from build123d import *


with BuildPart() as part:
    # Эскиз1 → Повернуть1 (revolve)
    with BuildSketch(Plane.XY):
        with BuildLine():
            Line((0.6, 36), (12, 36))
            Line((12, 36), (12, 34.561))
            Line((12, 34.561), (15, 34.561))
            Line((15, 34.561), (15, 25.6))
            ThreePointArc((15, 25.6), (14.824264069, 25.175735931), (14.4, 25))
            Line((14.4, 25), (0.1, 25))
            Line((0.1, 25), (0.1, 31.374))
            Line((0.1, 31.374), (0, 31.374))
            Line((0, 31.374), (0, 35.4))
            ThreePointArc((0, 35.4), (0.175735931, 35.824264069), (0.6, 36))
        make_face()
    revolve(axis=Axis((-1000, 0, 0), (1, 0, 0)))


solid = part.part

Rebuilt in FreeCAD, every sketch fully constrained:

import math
import FreeCAD as App
import Part
import Sketcher

V = App.Vector

doc = App.newDocument("Part")
body = doc.addObject("PartDesign::Body", "Body")

# Sketch on XY plane
sketch1 = body.newObject("Sketcher::SketchObject", "Sketch")
sketch1.AttachmentSupport = (doc.getObject("XY_Plane"), [""])
sketch1.MapMode = "FlatFace"
sketch1.addGeometry([
    Part.LineSegment(V(12, 36, 0), V(0.6, 36, 0)),  # 0
    Part.ArcOfCircle(Part.Circle(V(0.6, 35.4, 0), V(0, 0, 1), 0.6), math.radians(90), math.radians(180)),  # 1
    Part.LineSegment(V(0, 35.4, 0), V(0, 31.374, 0)),  # 2
    Part.LineSegment(V(0, 31.374, 0), V(0.1, 31.374, 0)),  # 3
    Part.LineSegment(V(0.1, 31.374, 0), V(0.1, 25, 0)),  # 4
    Part.LineSegment(V(0.1, 25, 0), V(14.4, 25, 0)),  # 5
    Part.ArcOfCircle(Part.Circle(V(14.4, 25.6, 0), V(0, 0, 1), 0.6), math.radians(-90), math.radians(0)),  # 6
    Part.LineSegment(V(15, 25.6, 0), V(15, 34.561, 0)),  # 7
    Part.LineSegment(V(15, 34.561, 0), V(12, 34.561, 0)),  # 8
    Part.LineSegment(V(12, 34.561, 0), V(12, 36, 0)),  # 9
], False)
sketch1.addConstraint([
    Sketcher.Constraint("Tangent", 0, 2, 1, 1),
    Sketcher.Constraint("Tangent", 1, 2, 2, 1),
    Sketcher.Constraint("Coincident", 2, 2, 3, 1),
    Sketcher.Constraint("Coincident", 3, 2, 4, 1),
    Sketcher.Constraint("Coincident", 4, 2, 5, 1),
    Sketcher.Constraint("Tangent", 5, 2, 6, 1),
    Sketcher.Constraint("Tangent", 6, 2, 7, 1),
    Sketcher.Constraint("Coincident", 7, 2, 8, 1),
    Sketcher.Constraint("Coincident", 8, 2, 9, 1),
    Sketcher.Constraint("Coincident", 9, 2, 0, 1),
    Sketcher.Constraint("Horizontal", 0),
    Sketcher.Constraint("Vertical", 2),
    Sketcher.Constraint("Horizontal", 3),
    Sketcher.Constraint("Vertical", 4),
    Sketcher.Constraint("Horizontal", 5),
    Sketcher.Constraint("Vertical", 7),
    Sketcher.Constraint("Horizontal", 8),
    Sketcher.Constraint("Vertical", 9),
    Sketcher.Constraint("Equal", 1, 6),
    Sketcher.Constraint("PointOnObject", 1, 2, -2),
    Sketcher.Constraint("Radius", 1, 0.6),
    Sketcher.Constraint("DistanceX", 8, 2, 8, 1, 3.0),
    Sketcher.Constraint("DistanceX", 0, 2, 0, 1, 11.4),
    Sketcher.Constraint("DistanceX", 3, 1, 3, 2, 0.1),
    Sketcher.Constraint("DistanceY", -1, 1, 0, 2, 36.0),
    Sketcher.Constraint("DistanceY", -1, 1, 4, 2, 25.0),
    Sketcher.Constraint("DistanceY", 2, 2, 2, 1, 4.026),
    Sketcher.Constraint("DistanceY", 7, 1, 7, 2, 8.961),
])
revolution = body.newObject("PartDesign::Revolution", "Revolution")
revolution.Profile = sketch1
revolution.ReferenceAxis = (sketch1, ["H_Axis"])
revolution.Angle = 360

doc.recompute()
